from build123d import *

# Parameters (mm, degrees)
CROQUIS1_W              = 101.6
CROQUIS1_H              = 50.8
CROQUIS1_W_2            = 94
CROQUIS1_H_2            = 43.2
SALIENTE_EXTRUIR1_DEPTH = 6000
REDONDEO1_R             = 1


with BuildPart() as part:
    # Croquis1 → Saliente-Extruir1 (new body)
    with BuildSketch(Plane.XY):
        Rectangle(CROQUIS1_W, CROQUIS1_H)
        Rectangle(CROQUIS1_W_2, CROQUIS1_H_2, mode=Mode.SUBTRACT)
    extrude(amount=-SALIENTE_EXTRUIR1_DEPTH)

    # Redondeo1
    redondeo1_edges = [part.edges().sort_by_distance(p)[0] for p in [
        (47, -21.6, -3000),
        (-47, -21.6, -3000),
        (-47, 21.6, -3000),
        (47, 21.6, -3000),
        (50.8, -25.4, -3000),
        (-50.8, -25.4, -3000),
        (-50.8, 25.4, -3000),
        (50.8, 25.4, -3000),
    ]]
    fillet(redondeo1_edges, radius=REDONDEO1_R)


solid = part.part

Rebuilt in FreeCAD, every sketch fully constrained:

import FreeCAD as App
import Part
import Sketcher


def edges_at(feature, points):
    """Names of the edges that pass closest to the given points."""
    edges = feature.Shape.Edges
    near = lambda p: min(range(len(edges)), key=lambda i: edges[i].distToShape(Part.Vertex(*p))[0])
    return sorted({f"Edge{near(p) + 1}" for p in points})


def add_polygon(sketch, points):
    """Adds a closed chain of lines whose ends are joined by coincident constraints."""
    first, n = sketch.GeometryCount, len(points)
    for a, b in zip(points, points[1:] + points[:1]):
        sketch.addGeometry(Part.LineSegment(App.Vector(*a, 0), App.Vector(*b, 0)), False)
    for i in range(n):
        sketch.addConstraint(Sketcher.Constraint("Coincident", first + i, 2, first + (i + 1) % n, 1))

doc = App.newDocument("Part")
body = doc.addObject("PartDesign::Body", "Body")

# Sketch on XY plane
sketch1 = body.newObject("Sketcher::SketchObject", "Sketch")
sketch1.AttachmentSupport = (doc.getObject("XY_Plane"), [""])
sketch1.MapMode = "FlatFace"
add_polygon(sketch1, [(-51, 25), (-51, -25), (51, -25), (51, 25)])  # lines 0-3
add_polygon(sketch1, [(47, -22), (-47, -22), (-47, 22), (47, 22)])  # lines 4-7
sketch1.addConstraint(Sketcher.Constraint("Vertical", 0))
sketch1.addConstraint(Sketcher.Constraint("Horizontal", 1))
sketch1.addConstraint(Sketcher.Constraint("Vertical", 2))
sketch1.addConstraint(Sketcher.Constraint("Horizontal", 3))
sketch1.addConstraint(Sketcher.Constraint("Horizontal", 4))
sketch1.addConstraint(Sketcher.Constraint("Vertical", 5))
sketch1.addConstraint(Sketcher.Constraint("Horizontal", 6))
sketch1.addConstraint(Sketcher.Constraint("Vertical", 7))
sketch1.addConstraint(Sketcher.Constraint("Symmetric", 0, 2, 2, 2, -1, 1))
sketch1.addConstraint(Sketcher.Constraint("Symmetric", 4, 2, 6, 2, -1, 1))
sketch1.addConstraint(Sketcher.Constraint("DistanceX", 4, 2, 4, 1, 94.0))
sketch1.addConstraint(Sketcher.Constraint("DistanceX", 1, 1, 1, 2, 101.6))
sketch1.addConstraint(Sketcher.Constraint("DistanceY", 0, 2, 0, 1, 50.8))
sketch1.addConstraint(Sketcher.Constraint("DistanceY", 5, 1, 5, 2, 43.2))
pad1 = body.newObject("PartDesign::Pad", "Pad")
pad1.Profile = sketch1
pad1.Length = 6000
pad1.Reversed = True
doc.recompute()

fillet = body.newObject("PartDesign::Fillet", "Fillet")
fillet.Base = (pad1, edges_at(pad1, [
    (47, -21.6, -3000),
    (-47, -21.6, -3000),
    (-47, 21.6, -3000),
    (47, 21.6, -3000),
    (50.8, -25.4, -3000),
    (-50.8, -25.4, -3000),
    (-50.8, 25.4, -3000),
    (50.8, 25.4, -3000),
]))
fillet.Radius = 1

doc.recompute()
